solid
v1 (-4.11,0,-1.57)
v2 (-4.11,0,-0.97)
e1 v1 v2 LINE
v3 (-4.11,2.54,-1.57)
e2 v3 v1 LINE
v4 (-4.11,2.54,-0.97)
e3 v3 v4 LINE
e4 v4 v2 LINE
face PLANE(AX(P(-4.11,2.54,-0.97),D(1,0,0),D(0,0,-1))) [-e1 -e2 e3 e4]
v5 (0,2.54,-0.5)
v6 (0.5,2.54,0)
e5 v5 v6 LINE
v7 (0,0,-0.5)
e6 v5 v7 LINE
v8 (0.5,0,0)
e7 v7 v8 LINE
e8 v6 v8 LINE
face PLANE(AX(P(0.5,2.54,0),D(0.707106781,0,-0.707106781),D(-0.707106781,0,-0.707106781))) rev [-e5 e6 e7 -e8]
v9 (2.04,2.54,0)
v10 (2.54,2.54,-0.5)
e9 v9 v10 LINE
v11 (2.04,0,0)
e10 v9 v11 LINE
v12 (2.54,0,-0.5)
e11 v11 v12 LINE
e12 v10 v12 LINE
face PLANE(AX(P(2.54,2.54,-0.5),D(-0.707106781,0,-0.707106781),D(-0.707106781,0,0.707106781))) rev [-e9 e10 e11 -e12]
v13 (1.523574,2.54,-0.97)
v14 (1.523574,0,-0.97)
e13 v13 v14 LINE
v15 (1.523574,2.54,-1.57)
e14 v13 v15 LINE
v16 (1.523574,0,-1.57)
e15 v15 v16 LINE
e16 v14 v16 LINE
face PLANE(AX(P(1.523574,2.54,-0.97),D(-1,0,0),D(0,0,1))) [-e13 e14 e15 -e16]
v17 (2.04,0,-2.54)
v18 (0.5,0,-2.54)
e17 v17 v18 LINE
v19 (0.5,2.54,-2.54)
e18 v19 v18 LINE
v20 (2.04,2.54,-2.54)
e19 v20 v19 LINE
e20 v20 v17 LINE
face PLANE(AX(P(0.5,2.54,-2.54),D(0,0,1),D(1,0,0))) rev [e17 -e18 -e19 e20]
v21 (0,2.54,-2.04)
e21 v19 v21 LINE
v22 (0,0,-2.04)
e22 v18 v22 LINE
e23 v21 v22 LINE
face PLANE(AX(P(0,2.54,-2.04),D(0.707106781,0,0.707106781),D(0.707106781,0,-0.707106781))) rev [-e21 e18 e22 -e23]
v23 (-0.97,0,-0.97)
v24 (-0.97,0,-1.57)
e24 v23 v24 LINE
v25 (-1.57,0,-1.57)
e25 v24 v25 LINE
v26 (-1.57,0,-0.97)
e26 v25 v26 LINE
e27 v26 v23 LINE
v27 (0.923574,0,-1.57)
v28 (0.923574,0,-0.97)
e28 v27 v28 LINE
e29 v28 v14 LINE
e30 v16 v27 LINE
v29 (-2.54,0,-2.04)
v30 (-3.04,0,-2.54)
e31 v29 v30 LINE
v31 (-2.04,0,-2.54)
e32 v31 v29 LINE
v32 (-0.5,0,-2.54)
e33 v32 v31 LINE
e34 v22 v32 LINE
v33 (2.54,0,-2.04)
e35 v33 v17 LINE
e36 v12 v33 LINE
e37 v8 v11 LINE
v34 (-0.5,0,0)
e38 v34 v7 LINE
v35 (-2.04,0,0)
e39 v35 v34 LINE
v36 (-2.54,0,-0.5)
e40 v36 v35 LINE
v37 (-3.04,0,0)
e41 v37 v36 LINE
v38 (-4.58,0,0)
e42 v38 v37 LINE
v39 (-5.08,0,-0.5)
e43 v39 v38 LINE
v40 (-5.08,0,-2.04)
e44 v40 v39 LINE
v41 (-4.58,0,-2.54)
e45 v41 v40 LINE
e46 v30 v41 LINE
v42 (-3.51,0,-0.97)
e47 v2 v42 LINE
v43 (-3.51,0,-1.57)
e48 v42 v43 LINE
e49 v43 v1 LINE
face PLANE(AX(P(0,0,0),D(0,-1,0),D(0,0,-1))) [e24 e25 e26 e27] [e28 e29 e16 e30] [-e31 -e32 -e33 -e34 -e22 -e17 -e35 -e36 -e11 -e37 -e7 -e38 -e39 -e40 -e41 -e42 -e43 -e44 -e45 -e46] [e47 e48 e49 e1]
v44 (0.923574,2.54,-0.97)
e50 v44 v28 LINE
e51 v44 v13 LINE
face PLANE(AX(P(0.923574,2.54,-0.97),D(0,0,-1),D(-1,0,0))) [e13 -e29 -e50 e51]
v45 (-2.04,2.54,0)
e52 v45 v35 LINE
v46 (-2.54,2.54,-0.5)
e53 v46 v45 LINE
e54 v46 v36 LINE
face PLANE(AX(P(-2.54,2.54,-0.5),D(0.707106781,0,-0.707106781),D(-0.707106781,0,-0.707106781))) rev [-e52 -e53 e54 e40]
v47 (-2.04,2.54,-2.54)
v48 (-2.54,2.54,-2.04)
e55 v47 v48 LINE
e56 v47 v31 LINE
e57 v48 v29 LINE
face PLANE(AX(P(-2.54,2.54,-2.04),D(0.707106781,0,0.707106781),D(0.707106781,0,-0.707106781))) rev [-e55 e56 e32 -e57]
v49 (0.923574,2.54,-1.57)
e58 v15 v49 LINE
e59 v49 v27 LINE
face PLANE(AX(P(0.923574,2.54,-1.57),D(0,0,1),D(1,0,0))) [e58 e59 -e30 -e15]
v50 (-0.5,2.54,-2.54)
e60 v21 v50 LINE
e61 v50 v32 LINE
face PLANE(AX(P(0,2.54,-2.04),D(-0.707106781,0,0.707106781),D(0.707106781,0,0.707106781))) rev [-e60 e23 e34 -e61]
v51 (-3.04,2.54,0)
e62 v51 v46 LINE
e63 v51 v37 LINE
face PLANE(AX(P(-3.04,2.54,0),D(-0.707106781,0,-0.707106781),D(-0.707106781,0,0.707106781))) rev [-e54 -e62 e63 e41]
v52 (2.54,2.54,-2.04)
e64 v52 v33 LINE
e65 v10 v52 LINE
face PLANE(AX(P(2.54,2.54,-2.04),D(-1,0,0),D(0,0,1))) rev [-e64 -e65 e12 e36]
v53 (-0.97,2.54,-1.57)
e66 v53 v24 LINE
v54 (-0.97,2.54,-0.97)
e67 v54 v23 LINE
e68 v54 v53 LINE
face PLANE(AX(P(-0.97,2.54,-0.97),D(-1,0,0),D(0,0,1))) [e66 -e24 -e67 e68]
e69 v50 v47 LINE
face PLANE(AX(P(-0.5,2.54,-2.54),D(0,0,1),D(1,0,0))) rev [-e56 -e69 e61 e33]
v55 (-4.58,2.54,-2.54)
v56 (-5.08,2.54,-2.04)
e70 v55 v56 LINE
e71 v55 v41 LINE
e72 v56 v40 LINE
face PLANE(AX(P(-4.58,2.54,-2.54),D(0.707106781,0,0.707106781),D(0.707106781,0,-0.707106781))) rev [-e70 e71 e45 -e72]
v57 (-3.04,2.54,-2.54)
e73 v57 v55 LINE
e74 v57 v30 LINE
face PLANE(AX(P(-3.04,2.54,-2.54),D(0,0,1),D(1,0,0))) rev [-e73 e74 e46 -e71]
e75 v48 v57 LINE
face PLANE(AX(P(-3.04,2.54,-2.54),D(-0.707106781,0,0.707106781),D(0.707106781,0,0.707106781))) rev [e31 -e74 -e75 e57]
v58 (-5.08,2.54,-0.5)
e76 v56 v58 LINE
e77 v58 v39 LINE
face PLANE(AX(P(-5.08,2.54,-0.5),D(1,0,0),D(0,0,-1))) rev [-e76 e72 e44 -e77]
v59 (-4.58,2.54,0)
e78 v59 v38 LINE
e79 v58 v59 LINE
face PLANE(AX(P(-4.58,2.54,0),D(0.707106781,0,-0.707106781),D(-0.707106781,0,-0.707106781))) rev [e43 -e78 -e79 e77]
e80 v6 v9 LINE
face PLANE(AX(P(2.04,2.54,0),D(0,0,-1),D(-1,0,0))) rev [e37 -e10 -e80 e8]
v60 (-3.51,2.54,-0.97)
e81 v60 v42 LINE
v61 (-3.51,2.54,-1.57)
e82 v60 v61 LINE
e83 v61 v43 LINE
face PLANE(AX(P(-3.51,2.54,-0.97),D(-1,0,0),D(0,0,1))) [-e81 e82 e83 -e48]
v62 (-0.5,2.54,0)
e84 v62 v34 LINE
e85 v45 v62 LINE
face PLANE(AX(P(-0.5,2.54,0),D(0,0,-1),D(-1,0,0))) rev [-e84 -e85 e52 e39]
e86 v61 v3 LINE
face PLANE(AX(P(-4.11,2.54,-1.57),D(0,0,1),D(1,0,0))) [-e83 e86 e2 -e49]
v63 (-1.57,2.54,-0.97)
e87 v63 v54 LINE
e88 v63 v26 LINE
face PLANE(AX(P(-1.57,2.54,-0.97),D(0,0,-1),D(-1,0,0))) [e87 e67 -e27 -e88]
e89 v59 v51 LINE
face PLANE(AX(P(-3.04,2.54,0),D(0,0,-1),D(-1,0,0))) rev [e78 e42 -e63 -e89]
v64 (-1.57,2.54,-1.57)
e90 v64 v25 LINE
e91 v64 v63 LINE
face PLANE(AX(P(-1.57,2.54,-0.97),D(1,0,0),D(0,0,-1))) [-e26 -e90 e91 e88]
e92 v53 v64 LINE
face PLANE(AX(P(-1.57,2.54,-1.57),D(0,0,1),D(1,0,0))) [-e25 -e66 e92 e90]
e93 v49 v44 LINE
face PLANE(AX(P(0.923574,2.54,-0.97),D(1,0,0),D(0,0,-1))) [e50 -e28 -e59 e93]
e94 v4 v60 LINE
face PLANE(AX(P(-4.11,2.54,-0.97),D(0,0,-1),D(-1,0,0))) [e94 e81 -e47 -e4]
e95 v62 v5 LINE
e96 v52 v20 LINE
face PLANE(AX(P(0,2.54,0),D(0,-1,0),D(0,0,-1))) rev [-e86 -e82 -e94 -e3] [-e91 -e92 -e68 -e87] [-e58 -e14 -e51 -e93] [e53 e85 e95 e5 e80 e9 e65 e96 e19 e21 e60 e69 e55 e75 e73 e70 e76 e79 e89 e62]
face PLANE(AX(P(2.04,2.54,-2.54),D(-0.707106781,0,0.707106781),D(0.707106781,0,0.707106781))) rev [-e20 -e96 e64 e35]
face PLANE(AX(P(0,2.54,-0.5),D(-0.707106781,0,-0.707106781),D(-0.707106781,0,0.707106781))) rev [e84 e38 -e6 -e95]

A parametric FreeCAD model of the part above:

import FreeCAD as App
import Part
import Sketcher

V = App.Vector


def add_polygon(sketch, points):
    """Adds a closed chain of lines whose ends are joined by coincident constraints."""
    first, n = sketch.GeometryCount, len(points)
    for a, b in zip(points, points[1:] + points[:1]):
        sketch.addGeometry(Part.LineSegment(App.Vector(*a, 0), App.Vector(*b, 0)), False)
    for i in range(n):
        sketch.addConstraint(Sketcher.Constraint("Coincident", first + i, 2, first + (i + 1) % n, 1))

doc = App.newDocument("Part")
body = doc.addObject("PartDesign::Body", "Body")

sketch1 = body.newObject("Sketcher::SketchObject", "Sketch")
sketch1.AttachmentSupport = (doc.getObject("XZ_Plane"), [""])
sketch1.MapMode = "FlatFace"
add_polygon(sketch1, [(-2.04, 0), (-0.5, 0), (0, -0.5), (0.5, 0), (2.04, 0), (2.54, -0.5), (2.54, -2.04), (2.04, -2.54), (0.5, -2.54), (0, -2.04), (-0.5, -2.54), (-2.04, -2.54), (-2.54, -2.04), (-3.04, -2.54), (-4.58, -2.54), (-5.08, -2.04), (-5.08, -0.5), (-4.58, 0), (-3.04, 0), (-2.54, -0.5)])
add_polygon(sketch1, [(0.923574, -0.97), (0.923574, -1.57), (1.523574, -1.57), (1.523574, -0.97)])
add_polygon(sketch1, [(-1.57, -0.97), (-1.57, -1.57), (-0.97, -1.57), (-0.97, -0.97)])
add_polygon(sketch1, [(-4.11, -0.97), (-4.11, -1.57), (-3.51, -1.57), (-3.51, -0.97)])
sketch1.addConstraint([
    Sketcher.Constraint("Horizontal", 0),
    Sketcher.Constraint("Horizontal", 3),
    Sketcher.Constraint("Vertical", 5),
    Sketcher.Constraint("Horizontal", 7),
    Sketcher.Constraint("Horizontal", 10),
    Sketcher.Constraint("Horizontal", 13),
    Sketcher.Constraint("Vertical", 15),
    Sketcher.Constraint("Horizontal", 17),
    Sketcher.Constraint("Vertical", 20),
    Sketcher.Constraint("Horizontal", 21),
    Sketcher.Constraint("Vertical", 22),
    Sketcher.Constraint("Horizontal", 23),
    Sketcher.Constraint("Vertical", 24),
    Sketcher.Constraint("Horizontal", 25),
    Sketcher.Constraint("Vertical", 26),
    Sketcher.Constraint("Horizontal", 27),
    Sketcher.Constraint("Vertical", 28),
    Sketcher.Constraint("Horizontal", 29),
    Sketcher.Constraint("Vertical", 30),
    Sketcher.Constraint("Horizontal", 31),
    Sketcher.Constraint("Symmetric", 0, 2, 2, 2, -1, 1),
    Sketcher.Constraint("Symmetric", 7, 2, 9, 2, -2),
    Sketcher.Constraint("Symmetric", 5, 2, 11, 2, -2),
    Sketcher.Constraint("Symmetric", 4, 2, 18, 2, -2),
    Sketcher.Constraint("Symmetric", 3, 2, 19, 2, -2),
    Sketcher.Constraint("PointOnObject", 1, 2, -2),
    Sketcher.Constraint("PointOnObject", 8, 2, -2),
    Sketcher.Constraint("PointOnObject", 16, 2, -1),
    Sketcher.Constraint("Perpendicular", 1, 2),
    Sketcher.Constraint("Perpendicular", 2, 4),
    Sketcher.Constraint("Perpendicular", 4, 6),
    Sketcher.Constraint("Perpendicular", 6, 8),
    Sketcher.Constraint("Perpendicular", 9, 11),
    Sketcher.Constraint("Perpendicular", 11, 12),
    Sketcher.Constraint("Perpendicular", 12, 14),
    Sketcher.Constraint("Perpendicular", 14, 16),
    Sketcher.Constraint("Perpendicular", 16, 18),
    Sketcher.Constraint("Horizontal", 1, 2, 4, 2),
    Sketcher.Constraint("Horizontal", 5, 2, 8, 2),
    Sketcher.Constraint("Horizontal", 10, 2, 12, 2),
    Sketcher.Constraint("Horizontal", 11, 2, 14, 2),
    Sketcher.Constraint("Horizontal", 4, 2, 15, 2),
    Sketcher.Constraint("Horizontal", 21, 2, 24, 2),
    Sketcher.Constraint("Horizontal", 23, 2, 26, 2),
    Sketcher.Constraint("Horizontal", 25, 2, 28, 2),
    Sketcher.Constraint("Horizontal", 27, 2, 30, 2),
    Sketcher.Constraint("Vertical", 3, 2, 6, 2),
    Sketcher.Constraint("Equal", 10, 13),
    Sketcher.Constraint("Equal", 23, 25),
    Sketcher.Constraint("Equal", 27, 29),
    Sketcher.Constraint("Equal", 17, 5),
    Sketcher.Constraint("Equal", 31, 20),
    Sketcher.Constraint("DistanceX", 21, 1, 21, 2, 0.6),
    Sketcher.Constraint("DistanceX", 0, 2, 2, 2, 1.0),
    Sketcher.Constraint("DistanceX", 0, 1, 0, 2, 1.54),
    Sketcher.Constraint("DistanceY", 20, 2, -1, 1, 1.57),
    Sketcher.Constraint("DistanceX", 24, 2, -1, 1, 1.57),
    Sketcher.Constraint("DistanceX", 28, 2, -1, 1, 4.11),
    Sketcher.Constraint("DistanceX", -1, 1, 20, 2, 0.923574),
])
pad1 = body.newObject("PartDesign::Pad", "Pad")
pad1.Profile = sketch1
pad1.Length = 2.54
pad1.Reversed = True

doc.recompute()
